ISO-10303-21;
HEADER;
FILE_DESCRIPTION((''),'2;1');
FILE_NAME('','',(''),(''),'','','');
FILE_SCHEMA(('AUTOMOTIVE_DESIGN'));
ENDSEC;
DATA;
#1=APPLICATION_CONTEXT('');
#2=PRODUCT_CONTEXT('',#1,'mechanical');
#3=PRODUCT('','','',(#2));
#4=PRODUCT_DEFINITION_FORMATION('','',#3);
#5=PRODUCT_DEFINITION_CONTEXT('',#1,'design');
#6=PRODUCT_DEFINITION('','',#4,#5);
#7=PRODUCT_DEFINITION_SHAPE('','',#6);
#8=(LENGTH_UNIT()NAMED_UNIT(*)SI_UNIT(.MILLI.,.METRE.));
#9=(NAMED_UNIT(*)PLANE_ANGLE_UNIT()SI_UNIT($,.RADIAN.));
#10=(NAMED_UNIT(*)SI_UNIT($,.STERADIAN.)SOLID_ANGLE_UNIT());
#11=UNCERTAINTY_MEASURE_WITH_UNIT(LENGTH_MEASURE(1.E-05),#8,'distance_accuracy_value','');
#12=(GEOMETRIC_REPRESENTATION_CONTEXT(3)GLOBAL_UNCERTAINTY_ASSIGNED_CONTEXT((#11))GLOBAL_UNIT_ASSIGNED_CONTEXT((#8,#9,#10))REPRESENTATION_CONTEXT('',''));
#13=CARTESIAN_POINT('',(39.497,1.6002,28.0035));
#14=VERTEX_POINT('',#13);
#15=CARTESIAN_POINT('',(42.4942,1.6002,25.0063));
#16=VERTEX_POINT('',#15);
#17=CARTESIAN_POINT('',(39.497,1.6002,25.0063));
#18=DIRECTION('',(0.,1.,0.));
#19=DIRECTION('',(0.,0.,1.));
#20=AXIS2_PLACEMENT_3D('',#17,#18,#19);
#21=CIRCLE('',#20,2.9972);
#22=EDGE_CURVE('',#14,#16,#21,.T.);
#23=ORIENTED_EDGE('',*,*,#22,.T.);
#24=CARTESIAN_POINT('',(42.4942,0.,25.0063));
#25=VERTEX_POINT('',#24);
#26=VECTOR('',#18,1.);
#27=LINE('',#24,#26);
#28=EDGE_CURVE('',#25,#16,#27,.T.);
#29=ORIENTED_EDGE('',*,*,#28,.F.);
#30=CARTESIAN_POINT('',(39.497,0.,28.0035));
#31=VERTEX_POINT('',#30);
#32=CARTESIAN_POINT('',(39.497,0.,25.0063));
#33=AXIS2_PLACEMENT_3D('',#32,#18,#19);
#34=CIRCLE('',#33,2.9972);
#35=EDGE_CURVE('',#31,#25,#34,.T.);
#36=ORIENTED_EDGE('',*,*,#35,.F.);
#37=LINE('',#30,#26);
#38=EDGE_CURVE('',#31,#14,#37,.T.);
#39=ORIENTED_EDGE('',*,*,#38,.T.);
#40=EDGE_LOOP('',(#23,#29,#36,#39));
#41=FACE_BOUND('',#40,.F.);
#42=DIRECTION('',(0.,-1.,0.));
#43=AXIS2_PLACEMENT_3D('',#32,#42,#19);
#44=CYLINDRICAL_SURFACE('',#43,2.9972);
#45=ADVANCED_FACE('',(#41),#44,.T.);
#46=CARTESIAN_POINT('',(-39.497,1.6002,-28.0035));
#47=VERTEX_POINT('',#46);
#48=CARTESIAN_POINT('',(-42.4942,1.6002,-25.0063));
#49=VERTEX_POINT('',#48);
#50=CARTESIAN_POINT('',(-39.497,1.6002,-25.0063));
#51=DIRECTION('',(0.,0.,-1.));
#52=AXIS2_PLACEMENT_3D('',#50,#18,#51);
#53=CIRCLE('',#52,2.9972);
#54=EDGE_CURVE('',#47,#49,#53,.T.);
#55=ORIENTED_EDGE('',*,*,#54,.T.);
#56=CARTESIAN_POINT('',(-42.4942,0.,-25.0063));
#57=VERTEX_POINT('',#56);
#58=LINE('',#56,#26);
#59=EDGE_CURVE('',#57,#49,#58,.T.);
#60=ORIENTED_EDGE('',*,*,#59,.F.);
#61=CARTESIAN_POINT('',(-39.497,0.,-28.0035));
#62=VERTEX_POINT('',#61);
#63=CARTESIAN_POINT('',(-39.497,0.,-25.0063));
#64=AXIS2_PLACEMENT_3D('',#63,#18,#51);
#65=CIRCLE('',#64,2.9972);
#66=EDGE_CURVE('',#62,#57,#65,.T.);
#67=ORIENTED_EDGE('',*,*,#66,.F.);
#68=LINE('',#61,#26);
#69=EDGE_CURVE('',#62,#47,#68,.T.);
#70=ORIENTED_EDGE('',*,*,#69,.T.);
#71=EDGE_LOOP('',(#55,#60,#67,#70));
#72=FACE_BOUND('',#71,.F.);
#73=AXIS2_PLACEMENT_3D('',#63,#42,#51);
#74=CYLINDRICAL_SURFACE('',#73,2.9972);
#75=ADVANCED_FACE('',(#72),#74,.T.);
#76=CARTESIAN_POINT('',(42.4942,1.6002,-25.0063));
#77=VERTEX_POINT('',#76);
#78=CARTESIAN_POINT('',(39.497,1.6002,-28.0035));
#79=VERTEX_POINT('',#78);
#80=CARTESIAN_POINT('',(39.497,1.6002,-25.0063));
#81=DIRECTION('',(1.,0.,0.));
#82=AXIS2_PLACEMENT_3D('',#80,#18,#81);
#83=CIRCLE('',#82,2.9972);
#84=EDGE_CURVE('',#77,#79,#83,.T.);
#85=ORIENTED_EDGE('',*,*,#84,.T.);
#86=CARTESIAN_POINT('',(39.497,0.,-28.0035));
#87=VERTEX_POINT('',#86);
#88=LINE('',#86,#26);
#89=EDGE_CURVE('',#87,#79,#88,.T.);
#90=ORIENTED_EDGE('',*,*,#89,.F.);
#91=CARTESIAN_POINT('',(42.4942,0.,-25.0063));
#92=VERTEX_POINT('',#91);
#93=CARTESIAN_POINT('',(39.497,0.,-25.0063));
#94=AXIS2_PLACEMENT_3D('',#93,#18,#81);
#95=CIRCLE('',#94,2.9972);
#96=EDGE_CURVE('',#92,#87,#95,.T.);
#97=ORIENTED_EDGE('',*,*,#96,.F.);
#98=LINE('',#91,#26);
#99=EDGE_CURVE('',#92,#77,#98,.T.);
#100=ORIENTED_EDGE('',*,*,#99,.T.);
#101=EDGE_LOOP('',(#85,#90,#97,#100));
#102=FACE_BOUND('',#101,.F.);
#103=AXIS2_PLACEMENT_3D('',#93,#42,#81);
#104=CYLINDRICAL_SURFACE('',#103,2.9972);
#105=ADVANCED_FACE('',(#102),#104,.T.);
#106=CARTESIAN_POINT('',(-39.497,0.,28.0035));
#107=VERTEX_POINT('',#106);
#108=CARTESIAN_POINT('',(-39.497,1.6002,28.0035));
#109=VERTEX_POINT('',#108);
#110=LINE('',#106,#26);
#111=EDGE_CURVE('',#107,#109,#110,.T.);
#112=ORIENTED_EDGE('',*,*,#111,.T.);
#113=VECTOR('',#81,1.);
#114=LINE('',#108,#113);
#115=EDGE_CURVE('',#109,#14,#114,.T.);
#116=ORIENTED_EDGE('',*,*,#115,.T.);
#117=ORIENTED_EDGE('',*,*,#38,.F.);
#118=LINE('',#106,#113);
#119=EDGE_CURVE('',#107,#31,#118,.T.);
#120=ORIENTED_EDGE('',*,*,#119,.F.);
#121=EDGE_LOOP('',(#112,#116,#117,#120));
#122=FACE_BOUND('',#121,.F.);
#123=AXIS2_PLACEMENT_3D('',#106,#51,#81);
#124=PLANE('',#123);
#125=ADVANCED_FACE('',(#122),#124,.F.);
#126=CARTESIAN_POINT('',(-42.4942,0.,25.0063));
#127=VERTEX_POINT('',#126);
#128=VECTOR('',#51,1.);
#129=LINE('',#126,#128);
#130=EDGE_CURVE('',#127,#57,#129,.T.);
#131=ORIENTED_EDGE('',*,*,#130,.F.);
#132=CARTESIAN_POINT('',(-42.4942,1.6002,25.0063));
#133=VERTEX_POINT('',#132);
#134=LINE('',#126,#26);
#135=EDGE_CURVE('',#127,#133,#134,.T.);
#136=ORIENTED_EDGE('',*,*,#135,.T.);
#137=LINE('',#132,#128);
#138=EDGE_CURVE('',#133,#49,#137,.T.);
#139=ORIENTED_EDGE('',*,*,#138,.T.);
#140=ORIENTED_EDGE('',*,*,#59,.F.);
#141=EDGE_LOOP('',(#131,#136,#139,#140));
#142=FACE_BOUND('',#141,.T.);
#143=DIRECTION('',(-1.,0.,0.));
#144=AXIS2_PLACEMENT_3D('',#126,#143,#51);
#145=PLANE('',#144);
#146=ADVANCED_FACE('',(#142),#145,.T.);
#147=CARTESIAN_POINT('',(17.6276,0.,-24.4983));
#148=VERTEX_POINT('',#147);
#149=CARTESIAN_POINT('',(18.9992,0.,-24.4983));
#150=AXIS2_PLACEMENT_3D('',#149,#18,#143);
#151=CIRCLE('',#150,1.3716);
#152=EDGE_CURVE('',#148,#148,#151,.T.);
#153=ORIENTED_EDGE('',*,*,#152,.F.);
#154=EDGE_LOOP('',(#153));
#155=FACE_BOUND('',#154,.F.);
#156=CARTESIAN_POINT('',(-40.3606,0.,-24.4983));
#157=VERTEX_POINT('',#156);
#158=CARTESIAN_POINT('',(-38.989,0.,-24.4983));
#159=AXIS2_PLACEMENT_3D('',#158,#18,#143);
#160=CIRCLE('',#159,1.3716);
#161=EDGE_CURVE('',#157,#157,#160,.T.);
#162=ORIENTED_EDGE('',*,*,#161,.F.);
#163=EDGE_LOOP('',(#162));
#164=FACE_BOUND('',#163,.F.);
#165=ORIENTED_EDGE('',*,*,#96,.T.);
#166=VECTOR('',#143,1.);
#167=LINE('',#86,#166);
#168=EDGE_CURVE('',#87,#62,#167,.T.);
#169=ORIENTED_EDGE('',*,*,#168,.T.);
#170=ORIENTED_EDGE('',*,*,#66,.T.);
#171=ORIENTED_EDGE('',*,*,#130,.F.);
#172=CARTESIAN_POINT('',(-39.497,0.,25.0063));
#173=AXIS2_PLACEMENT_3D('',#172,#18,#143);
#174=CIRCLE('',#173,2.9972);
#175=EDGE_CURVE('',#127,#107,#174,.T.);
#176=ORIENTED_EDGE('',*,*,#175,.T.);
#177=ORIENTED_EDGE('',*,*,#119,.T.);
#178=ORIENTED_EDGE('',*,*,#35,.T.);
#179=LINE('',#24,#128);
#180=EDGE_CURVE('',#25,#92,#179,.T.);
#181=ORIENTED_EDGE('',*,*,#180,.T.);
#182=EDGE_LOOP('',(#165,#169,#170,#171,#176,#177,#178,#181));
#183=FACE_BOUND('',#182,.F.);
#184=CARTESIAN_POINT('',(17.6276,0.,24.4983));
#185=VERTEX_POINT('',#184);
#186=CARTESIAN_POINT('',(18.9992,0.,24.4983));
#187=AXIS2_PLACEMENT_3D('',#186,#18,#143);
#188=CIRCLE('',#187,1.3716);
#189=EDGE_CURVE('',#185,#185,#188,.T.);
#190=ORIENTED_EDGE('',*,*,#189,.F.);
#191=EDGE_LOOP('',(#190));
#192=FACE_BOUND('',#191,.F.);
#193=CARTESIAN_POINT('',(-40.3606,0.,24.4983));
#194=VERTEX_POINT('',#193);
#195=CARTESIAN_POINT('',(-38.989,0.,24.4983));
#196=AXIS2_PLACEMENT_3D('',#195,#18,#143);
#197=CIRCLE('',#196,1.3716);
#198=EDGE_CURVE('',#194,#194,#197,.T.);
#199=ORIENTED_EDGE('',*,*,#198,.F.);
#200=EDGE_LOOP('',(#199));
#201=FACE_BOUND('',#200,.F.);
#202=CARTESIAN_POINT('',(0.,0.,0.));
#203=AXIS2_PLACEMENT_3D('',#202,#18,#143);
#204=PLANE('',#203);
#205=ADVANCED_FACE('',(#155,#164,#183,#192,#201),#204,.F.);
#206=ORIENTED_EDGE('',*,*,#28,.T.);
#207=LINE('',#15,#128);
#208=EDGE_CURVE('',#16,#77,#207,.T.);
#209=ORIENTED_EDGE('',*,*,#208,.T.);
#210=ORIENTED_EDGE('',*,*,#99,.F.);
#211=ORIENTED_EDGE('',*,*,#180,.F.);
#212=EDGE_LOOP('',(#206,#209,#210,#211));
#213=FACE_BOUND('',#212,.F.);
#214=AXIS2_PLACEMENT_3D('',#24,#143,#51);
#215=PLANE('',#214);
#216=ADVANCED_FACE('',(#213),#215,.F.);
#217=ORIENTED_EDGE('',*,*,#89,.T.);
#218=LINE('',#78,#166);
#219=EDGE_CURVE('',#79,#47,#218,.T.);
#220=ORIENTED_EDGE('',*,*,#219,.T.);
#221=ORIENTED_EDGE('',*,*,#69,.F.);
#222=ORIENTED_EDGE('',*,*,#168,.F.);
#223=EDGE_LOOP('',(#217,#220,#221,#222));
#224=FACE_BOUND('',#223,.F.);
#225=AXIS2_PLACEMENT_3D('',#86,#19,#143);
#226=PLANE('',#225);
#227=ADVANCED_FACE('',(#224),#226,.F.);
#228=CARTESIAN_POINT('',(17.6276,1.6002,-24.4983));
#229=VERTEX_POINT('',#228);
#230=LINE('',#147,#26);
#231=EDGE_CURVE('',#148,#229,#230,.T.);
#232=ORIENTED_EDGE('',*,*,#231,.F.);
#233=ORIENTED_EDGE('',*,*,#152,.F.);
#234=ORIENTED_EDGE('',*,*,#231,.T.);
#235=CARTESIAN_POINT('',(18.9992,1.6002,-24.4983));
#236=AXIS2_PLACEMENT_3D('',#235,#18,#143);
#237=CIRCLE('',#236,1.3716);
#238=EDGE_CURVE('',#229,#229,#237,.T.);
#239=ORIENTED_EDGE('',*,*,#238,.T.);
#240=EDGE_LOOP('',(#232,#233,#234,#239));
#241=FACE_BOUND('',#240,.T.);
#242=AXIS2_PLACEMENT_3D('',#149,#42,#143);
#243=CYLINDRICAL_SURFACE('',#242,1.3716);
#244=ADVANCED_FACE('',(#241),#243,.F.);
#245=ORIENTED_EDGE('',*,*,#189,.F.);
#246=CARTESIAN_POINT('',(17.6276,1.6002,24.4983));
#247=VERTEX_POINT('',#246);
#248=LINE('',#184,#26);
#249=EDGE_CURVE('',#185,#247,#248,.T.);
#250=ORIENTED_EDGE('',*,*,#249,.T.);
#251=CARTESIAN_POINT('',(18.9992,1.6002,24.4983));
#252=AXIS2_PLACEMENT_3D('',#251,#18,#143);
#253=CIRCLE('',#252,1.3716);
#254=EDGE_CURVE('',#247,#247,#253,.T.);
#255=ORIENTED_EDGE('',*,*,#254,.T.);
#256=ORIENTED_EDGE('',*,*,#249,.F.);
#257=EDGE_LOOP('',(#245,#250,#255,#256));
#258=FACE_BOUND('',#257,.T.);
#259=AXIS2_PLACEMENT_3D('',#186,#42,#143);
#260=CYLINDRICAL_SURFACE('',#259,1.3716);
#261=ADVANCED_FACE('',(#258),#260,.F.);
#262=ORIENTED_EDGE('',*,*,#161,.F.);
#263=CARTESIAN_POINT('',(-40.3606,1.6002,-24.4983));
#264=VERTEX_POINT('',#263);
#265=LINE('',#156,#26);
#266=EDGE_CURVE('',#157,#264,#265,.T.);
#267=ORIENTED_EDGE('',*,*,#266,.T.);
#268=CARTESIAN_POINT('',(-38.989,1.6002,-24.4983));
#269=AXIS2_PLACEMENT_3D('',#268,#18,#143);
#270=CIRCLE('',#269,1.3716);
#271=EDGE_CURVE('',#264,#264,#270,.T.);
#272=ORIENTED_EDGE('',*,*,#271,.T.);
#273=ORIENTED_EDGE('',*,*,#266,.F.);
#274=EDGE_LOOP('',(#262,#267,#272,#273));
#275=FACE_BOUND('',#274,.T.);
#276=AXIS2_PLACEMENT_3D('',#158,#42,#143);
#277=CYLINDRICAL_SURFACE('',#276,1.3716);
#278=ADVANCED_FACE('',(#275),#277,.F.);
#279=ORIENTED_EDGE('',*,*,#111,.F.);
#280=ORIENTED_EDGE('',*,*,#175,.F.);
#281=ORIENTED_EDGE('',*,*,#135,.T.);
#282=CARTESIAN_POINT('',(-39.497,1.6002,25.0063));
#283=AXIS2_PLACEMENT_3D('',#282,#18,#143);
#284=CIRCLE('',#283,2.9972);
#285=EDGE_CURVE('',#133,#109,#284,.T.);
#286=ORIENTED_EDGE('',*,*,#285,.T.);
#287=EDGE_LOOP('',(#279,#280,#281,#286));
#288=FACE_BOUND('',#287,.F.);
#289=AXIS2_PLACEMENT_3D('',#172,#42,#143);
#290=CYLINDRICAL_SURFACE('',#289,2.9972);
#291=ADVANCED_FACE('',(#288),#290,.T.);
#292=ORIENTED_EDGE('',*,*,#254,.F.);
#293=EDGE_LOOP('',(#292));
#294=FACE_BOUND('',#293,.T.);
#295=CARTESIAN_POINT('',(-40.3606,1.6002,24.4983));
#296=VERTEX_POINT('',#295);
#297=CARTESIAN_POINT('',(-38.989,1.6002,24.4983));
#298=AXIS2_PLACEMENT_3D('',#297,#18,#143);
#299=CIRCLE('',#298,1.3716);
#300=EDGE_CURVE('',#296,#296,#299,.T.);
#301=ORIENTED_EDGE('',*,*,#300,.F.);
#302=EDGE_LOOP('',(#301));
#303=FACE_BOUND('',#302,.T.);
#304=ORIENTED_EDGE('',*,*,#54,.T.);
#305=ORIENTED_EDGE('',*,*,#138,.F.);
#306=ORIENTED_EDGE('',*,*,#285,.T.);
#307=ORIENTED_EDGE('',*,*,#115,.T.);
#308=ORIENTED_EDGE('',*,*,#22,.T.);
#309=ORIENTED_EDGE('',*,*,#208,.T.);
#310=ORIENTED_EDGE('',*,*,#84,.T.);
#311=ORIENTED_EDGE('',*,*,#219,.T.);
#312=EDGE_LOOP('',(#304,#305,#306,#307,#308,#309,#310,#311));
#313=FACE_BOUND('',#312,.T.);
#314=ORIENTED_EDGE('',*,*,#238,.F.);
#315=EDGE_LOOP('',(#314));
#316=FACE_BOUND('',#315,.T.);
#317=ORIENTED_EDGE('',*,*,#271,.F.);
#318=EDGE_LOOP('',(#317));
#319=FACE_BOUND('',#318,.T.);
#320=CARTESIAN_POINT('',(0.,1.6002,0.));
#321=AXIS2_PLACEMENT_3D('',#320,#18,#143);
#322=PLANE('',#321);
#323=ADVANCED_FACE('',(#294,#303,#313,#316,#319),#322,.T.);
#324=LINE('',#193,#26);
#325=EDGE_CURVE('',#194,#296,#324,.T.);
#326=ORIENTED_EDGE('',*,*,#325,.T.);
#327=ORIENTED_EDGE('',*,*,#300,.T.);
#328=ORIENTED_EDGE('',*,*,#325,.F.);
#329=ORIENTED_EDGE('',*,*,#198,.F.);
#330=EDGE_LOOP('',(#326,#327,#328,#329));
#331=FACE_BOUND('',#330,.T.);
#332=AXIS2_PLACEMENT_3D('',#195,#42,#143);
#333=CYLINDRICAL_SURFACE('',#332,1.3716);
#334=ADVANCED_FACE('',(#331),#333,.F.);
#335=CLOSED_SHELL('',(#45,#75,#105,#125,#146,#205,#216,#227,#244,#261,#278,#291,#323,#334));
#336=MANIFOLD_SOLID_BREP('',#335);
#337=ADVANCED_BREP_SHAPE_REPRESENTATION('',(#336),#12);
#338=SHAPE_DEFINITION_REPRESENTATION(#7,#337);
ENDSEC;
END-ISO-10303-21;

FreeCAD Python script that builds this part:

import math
import FreeCAD as App
import Part
import Sketcher

V = App.Vector
Q = App.Units.Quantity

doc = App.newDocument("Part")
body = doc.addObject("PartDesign::Body", "Body")

sketch1 = body.newObject("Sketcher::SketchObject", "Sketch")
sketch1.AttachmentSupport = (doc.getObject("XZ_Plane"), [""])
sketch1.MapMode = "FlatFace"
sketch1.addGeometry([
    Part.LineSegment(V(-42.5, -25, 0), V(-42.5, 25, 0)),
    Part.ArcOfCircle(Part.Circle(V(-39.5, 25, 0), V(0, 0, 1), 3), math.radians(90), math.radians(180)),
    Part.LineSegment(V(-39.5, 28, 0), V(39.5, 28, 0)),
    Part.ArcOfCircle(Part.Circle(V(39.5, 25, 0), V(0, 0, 1), 3), math.radians(0), math.radians(90)),
    Part.LineSegment(V(42.5, 25, 0), V(42.5, -25, 0)),
    Part.ArcOfCircle(Part.Circle(V(39.5, -25, 0), V(0, 0, 1), 3), math.radians(-90), math.radians(0)),
    Part.LineSegment(V(39.5, -28, 0), V(-39.5, -28, 0)),
    Part.ArcOfCircle(Part.Circle(V(-39.5, -25, 0), V(0, 0, 1), 3), math.radians(180), math.radians(270)),
    Part.Circle(V(19, -24.5, 0), V(0, 0, 1), 1.4),
    Part.Circle(V(-39, -24.5, 0), V(0, 0, 1), 1.4),
    Part.Circle(V(19, 24.5, 0), V(0, 0, 1), 1.4),
    Part.Circle(V(-39, 24.5, 0), V(0, 0, 1), 1.4),
], False)
sketch1.addConstraint([
    Sketcher.Constraint("Tangent", 0, 2, 1, 2),
    Sketcher.Constraint("Tangent", 1, 1, 2, 1),
    Sketcher.Constraint("Tangent", 2, 2, 3, 2),
    Sketcher.Constraint("Tangent", 3, 1, 4, 1),
    Sketcher.Constraint("Tangent", 4, 2, 5, 2),
    Sketcher.Constraint("Tangent", 5, 1, 6, 1),
    Sketcher.Constraint("Tangent", 6, 2, 7, 2),
    Sketcher.Constraint("Tangent", 7, 1, 0, 1),
    Sketcher.Constraint("Vertical", 0),
    Sketcher.Constraint("Horizontal", 2),
    Sketcher.Constraint("Vertical", 4),
    Sketcher.Constraint("Horizontal", 6),
    Sketcher.Constraint("Equal", 1, 3),
    Sketcher.Constraint("Equal", 3, 5),
    Sketcher.Constraint("Equal", 5, 7),
    Sketcher.Constraint("Equal", 8, 9),
    Sketcher.Constraint("Equal", 9, 10),
    Sketcher.Constraint("Equal", 10, 11),
    Sketcher.Constraint("Symmetric", 1, 3, 5, 3, -1, 1),
    Sketcher.Constraint("Symmetric", 8, 3, 10, 3, -1),
    Sketcher.Constraint("Symmetric", 9, 3, 11, 3, -1),
    Sketcher.Constraint("Horizontal", 8, 3, 9, 3),
    Sketcher.Constraint("Diameter", 8, Q("0.108 in")),
    Sketcher.Constraint("Radius", 1, Q("0.118 in")),
    Sketcher.Constraint("DistanceX", 9, 3, 8, 3, Q("2.283 in")),
    Sketcher.Constraint("DistanceX", 0, 2, 11, 3, Q("0.138 in")),
    Sketcher.Constraint("DistanceY", 11, 3, 1, 1, Q("0.138 in")),
    Sketcher.Constraint("DistanceX", 2, 1, 2, 2, Q("3.11 in")),
    Sketcher.Constraint("DistanceY", 0, 1, 0, 2, Q("1.969 in")),
])
pad1 = body.newObject("PartDesign::Pad", "Pad")
pad1.Profile = sketch1
pad1.Length = Q("0.063 in")
pad1.Reversed = True

doc.recompute()
